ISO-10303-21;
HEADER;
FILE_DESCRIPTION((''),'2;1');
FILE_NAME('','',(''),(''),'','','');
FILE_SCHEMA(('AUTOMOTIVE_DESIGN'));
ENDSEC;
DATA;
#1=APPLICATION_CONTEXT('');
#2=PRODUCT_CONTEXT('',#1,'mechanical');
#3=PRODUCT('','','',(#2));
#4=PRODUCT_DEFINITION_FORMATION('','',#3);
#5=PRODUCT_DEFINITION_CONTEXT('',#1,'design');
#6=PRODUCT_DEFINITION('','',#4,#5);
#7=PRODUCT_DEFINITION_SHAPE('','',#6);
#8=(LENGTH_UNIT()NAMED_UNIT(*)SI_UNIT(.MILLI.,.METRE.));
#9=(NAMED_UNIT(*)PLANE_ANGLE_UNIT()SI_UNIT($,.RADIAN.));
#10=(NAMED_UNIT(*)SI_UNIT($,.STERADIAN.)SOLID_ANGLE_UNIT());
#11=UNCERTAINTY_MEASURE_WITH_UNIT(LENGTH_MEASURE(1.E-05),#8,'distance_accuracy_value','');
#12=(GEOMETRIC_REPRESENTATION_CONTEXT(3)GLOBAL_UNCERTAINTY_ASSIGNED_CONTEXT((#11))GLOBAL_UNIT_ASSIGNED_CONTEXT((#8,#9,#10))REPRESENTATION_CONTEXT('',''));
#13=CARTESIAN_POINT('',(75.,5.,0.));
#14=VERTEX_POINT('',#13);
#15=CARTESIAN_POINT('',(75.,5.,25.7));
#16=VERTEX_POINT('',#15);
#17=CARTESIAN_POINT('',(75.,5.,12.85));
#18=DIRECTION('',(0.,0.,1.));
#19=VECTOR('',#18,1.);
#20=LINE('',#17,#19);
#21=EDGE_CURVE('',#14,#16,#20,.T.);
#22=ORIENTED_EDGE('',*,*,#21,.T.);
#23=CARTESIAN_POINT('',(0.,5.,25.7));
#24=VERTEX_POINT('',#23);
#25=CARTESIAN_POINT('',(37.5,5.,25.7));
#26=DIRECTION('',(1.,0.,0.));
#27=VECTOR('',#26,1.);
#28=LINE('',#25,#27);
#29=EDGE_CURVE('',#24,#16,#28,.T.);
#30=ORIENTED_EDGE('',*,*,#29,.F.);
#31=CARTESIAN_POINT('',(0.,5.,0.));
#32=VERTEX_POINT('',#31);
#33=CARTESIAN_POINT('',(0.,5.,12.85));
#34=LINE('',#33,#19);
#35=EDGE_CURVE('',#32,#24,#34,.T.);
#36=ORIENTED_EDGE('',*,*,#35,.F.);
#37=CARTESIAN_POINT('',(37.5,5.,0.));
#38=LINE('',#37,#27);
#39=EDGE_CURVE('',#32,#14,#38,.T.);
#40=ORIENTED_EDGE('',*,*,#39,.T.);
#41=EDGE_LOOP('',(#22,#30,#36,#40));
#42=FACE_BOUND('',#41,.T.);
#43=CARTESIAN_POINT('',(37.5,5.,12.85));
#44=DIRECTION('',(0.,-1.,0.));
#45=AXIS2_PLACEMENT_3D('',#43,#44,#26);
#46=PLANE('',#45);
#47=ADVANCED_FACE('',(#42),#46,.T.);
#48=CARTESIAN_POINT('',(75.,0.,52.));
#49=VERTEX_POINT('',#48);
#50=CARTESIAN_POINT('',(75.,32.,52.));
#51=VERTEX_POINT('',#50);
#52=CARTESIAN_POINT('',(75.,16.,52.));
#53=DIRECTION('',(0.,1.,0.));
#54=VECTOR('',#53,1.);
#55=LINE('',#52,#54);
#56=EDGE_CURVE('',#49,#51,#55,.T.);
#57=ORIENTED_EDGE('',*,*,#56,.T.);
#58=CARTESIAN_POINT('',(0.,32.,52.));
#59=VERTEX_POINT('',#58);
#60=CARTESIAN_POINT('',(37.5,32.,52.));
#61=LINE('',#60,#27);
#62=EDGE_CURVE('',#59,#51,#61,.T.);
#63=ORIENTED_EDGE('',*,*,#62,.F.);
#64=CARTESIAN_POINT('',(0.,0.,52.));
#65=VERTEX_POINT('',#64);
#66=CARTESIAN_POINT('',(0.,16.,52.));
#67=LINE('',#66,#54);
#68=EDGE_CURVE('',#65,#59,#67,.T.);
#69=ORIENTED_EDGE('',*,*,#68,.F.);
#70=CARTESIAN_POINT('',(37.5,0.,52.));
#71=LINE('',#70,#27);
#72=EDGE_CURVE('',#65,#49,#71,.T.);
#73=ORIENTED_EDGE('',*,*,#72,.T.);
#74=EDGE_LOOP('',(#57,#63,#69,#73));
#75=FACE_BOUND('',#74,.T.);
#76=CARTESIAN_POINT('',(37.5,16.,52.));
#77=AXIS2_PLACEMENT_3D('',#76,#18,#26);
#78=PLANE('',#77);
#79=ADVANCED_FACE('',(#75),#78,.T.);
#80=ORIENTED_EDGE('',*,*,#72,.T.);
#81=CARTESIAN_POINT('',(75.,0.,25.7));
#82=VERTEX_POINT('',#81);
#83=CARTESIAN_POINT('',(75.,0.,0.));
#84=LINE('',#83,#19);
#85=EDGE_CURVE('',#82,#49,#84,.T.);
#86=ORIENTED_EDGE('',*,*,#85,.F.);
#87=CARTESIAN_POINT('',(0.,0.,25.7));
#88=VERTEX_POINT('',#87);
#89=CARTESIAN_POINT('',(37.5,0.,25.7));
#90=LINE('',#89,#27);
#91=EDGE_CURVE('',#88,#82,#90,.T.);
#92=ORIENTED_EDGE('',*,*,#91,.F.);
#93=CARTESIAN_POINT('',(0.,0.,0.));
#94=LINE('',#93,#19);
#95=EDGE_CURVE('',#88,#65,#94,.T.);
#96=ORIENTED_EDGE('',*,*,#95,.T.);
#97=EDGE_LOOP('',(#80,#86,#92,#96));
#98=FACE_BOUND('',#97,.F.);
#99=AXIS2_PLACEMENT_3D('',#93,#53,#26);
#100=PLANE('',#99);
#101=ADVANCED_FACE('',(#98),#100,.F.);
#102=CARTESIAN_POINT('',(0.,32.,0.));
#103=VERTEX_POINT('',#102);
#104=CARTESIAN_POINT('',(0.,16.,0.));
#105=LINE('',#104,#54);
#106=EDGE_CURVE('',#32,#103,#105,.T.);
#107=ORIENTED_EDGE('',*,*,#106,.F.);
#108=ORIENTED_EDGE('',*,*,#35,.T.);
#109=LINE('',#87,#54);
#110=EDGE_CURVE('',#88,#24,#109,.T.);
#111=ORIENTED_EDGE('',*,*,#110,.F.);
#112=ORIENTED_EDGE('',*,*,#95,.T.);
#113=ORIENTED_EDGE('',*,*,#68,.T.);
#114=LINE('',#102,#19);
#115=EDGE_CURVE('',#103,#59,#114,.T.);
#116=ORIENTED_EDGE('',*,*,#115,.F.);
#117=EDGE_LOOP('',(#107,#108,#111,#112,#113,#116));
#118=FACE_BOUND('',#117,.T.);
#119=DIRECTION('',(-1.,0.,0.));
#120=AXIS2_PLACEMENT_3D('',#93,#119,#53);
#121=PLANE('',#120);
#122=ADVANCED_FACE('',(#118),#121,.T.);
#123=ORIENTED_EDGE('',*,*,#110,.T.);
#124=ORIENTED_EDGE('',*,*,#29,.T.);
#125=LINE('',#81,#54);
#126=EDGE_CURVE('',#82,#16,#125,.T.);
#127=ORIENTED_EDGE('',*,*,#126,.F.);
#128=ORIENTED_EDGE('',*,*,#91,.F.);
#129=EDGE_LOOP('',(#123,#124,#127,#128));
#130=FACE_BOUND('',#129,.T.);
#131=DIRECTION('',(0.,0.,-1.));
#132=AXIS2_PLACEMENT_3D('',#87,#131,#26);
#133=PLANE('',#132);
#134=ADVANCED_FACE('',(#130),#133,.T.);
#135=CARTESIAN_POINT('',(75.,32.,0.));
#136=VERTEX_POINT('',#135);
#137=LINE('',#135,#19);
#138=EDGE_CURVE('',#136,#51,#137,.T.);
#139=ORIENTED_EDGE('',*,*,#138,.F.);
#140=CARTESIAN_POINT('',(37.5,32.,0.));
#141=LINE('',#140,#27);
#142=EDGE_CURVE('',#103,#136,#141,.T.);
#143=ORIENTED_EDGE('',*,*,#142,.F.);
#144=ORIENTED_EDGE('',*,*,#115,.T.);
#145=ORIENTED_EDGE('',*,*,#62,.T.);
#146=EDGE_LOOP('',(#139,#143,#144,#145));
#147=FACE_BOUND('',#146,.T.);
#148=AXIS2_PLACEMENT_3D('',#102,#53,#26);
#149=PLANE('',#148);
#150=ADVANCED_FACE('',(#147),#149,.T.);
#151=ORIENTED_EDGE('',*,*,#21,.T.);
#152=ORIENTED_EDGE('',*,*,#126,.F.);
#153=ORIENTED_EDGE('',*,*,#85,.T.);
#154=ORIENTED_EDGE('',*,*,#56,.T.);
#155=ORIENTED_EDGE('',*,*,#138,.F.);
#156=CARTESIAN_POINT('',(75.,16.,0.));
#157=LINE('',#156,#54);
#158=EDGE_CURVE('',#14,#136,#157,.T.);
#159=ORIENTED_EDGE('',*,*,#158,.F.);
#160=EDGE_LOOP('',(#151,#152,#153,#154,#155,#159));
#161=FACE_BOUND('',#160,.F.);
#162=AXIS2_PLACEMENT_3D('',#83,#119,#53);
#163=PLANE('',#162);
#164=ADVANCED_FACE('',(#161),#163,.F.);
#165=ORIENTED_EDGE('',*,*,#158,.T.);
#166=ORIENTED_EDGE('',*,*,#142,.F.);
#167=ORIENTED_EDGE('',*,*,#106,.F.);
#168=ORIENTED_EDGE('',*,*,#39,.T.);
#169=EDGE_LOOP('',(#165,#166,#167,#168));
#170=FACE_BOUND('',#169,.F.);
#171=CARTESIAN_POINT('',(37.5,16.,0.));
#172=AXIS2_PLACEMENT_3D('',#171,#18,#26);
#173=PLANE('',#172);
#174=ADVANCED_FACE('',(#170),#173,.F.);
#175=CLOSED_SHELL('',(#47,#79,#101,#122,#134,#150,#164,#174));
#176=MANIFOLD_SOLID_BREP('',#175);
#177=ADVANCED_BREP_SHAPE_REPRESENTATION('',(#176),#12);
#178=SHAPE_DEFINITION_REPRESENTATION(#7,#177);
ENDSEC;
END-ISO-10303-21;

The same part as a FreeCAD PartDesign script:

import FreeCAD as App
import Part
import Sketcher
Q = App.Units.Quantity

doc = App.newDocument("Part")
params = doc.addObject("Spreadsheet::Sheet", "Params")
for row, (alias, value) in enumerate([
    ("sketch1_width", "75 mm"),
    ("sketch1_height", "32 mm"),
    ("pad1_length", "52 mm"),
    ("sketch2_width", "75 mm"),
    ("sketch2_height", "25.7 mm"),
    ("pocket1_length", "5 mm"),
], start=1):
    params.set(f"A{row}", alias)
    params.set(f"B{row}", "=" + value)
    params.setAlias(f"B{row}", alias)

body = doc.addObject("PartDesign::Body", "Body")

sketch1 = doc.addObject("Sketcher::SketchObject", "Sketch")
body.addObject(sketch1)
sketch1.AttachmentSupport = (doc.XY_Plane, [""])
sketch1.MapMode = "FlatFace"
sketch1.addGeometry([
    Part.LineSegment(App.Vector(0, 32, 0), App.Vector(0, 0, 0)),
    Part.LineSegment(App.Vector(0, 0, 0), App.Vector(75, 0, 0)),
    Part.LineSegment(App.Vector(75, 0, 0), App.Vector(75, 32, 0)),
    Part.LineSegment(App.Vector(75, 32, 0), App.Vector(0, 32, 0)),
], False)
sketch1.addConstraint([
    Sketcher.Constraint("Coincident", 0, 2, 1, 1),
    Sketcher.Constraint("Coincident", 1, 2, 2, 1),
    Sketcher.Constraint("Coincident", 2, 2, 3, 1),
    Sketcher.Constraint("Coincident", 3, 2, 0, 1),
    Sketcher.Constraint("Vertical", 0),
    Sketcher.Constraint("Horizontal", 1),
    Sketcher.Constraint("Vertical", 2),
    Sketcher.Constraint("Horizontal", 3),
    Sketcher.Constraint("Coincident", 0, 2, -1, 1),
    Sketcher.Constraint("DistanceX", 1, 1, 1, 2, Q("75 mm")),
    Sketcher.Constraint("DistanceY", 0, 2, 0, 1, Q("32 mm")),
])
sketch1.setExpression("Constraints[9]", "Params.sketch1_width")
sketch1.setExpression("Constraints[10]", "Params.sketch1_height")
pad1 = doc.addObject("PartDesign::Pad", "Pad")
body.addObject(pad1)
pad1.Profile = sketch1
pad1.setExpression("Length", "Params.pad1_length")

sketch2 = doc.addObject("Sketcher::SketchObject", "Sketch001")
body.addObject(sketch2)
sketch2.AttachmentSupport = (doc.XZ_Plane, [""])
sketch2.MapMode = "FlatFace"
sketch2.addGeometry([
    Part.LineSegment(App.Vector(0, 26, 0), App.Vector(0, 0, 0)),
    Part.LineSegment(App.Vector(0, 0, 0), App.Vector(75, 0, 0)),
    Part.LineSegment(App.Vector(75, 0, 0), App.Vector(75, 26, 0)),
    Part.LineSegment(App.Vector(75, 26, 0), App.Vector(0, 26, 0)),
], False)
sketch2.addConstraint([
    Sketcher.Constraint("Coincident", 0, 2, 1, 1),
    Sketcher.Constraint("Coincident", 1, 2, 2, 1),
    Sketcher.Constraint("Coincident", 2, 2, 3, 1),
    Sketcher.Constraint("Coincident", 3, 2, 0, 1),
    Sketcher.Constraint("Vertical", 0),
    Sketcher.Constraint("Horizontal", 1),
    Sketcher.Constraint("Vertical", 2),
    Sketcher.Constraint("Horizontal", 3),
    Sketcher.Constraint("Coincident", 0, 2, -1, 1),
    Sketcher.Constraint("DistanceX", 1, 1, 1, 2, Q("75 mm")),
    Sketcher.Constraint("DistanceY", 0, 2, 0, 1, Q("25.7 mm")),
])
sketch2.setExpression("Constraints[9]", "Params.sketch2_width")
sketch2.setExpression("Constraints[10]", "Params.sketch2_height")
pocket1 = doc.addObject("PartDesign::Pocket", "Pocket")
body.addObject(pocket1)
pocket1.Profile = sketch2
pocket1.setExpression("Length", "Params.pocket1_length")

doc.recompute()
